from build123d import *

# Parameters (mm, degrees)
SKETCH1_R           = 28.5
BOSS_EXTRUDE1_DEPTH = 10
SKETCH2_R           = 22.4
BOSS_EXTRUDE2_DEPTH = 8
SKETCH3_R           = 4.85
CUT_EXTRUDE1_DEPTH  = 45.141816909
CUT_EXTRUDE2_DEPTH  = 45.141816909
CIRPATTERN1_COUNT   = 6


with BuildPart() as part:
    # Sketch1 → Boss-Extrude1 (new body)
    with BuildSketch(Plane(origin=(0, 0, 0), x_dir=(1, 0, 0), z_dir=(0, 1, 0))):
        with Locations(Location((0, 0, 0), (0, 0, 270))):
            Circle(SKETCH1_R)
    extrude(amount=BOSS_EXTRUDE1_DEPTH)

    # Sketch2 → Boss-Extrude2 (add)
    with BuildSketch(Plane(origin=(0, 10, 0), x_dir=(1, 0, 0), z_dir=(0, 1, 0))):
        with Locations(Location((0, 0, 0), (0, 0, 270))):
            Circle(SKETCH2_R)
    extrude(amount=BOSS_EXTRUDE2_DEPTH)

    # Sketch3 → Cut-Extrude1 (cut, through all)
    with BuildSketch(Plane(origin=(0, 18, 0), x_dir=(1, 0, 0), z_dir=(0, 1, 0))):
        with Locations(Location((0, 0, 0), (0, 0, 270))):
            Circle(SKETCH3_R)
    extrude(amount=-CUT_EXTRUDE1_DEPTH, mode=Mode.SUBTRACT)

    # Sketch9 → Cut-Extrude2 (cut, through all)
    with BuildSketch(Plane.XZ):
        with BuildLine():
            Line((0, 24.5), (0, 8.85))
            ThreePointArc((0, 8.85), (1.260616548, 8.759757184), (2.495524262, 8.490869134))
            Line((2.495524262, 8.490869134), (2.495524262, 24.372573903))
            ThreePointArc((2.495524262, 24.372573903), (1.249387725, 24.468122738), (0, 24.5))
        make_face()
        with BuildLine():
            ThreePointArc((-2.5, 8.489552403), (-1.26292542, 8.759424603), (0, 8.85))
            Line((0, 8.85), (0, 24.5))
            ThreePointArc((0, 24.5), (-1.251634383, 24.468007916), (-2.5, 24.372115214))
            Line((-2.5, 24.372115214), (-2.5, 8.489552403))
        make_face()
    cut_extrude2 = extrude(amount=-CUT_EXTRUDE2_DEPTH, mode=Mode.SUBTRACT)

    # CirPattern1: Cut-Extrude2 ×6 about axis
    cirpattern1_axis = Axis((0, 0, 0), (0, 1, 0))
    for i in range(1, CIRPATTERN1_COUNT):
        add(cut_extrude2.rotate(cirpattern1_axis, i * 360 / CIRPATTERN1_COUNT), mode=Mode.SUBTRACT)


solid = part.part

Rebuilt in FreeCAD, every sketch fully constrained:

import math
import FreeCAD as App
import Part
import Sketcher

doc = App.newDocument("Part")
params = doc.addObject("Spreadsheet::Sheet", "Params")
for row, (alias, value) in enumerate([
    ("sketch1_diameter", "57 mm"),
    ("pad1_length", "10 mm"),
    ("sketch2_diameter", "44.8 mm"),
    ("pad2_length", "8 mm"),
    ("sketch3_diameter", "9.7 mm"),
    ("sketch4_radius", "24.5 mm"),
    ("sketch4_radius2", "8.85 mm"),
], start=1):
    params.set(f"A{row}", alias)
    params.set(f"B{row}", "=" + value)
    params.setAlias(f"B{row}", alias)

body = doc.addObject("PartDesign::Body", "Body")

sketch1 = body.newObject("Sketcher::SketchObject", "Sketch")
sketch1.AttachmentSupport = (doc.getObject("XZ_Plane"), [""])
sketch1.MapMode = "FlatFace"
sketch1.addGeometry(Part.Circle(App.Vector(0, 0, 0), App.Vector(0, 0, 1), 28), False)
sketch1.addConstraint([
    Sketcher.Constraint("Coincident", 0, 3, -1, 1),
    Sketcher.Constraint("Diameter", 0, 57.0),
])
sketch1.setExpression("Constraints[1]", "Params.sketch1_diameter")
pad1 = body.newObject("PartDesign::Pad", "Pad")
pad1.Profile = sketch1
pad1.setExpression("Length", "Params.pad1_length")
pad1.Reversed = True

sketch2 = body.newObject("Sketcher::SketchObject", "Sketch001")
sketch2.AttachmentSupport = (doc.getObject("XZ_Plane"), [""])
sketch2.MapMode = "FlatFace"
sketch2.AttachmentOffset = App.Placement(App.Vector(0, 0, -10), App.Rotation())
sketch2.addGeometry(Part.Circle(App.Vector(0, 0, 0), App.Vector(0, 0, 1), 22), False)
sketch2.addConstraint([
    Sketcher.Constraint("Coincident", 0, 3, -1, 1),
    Sketcher.Constraint("Diameter", 0, 44.8),
])
sketch2.setExpression("Constraints[1]", "Params.sketch2_diameter")
pad2 = body.newObject("PartDesign::Pad", "Pad001")
pad2.Profile = sketch2
pad2.setExpression("Length", "Params.pad2_length")
pad2.Reversed = True

sketch3 = body.newObject("Sketcher::SketchObject", "Sketch002")
sketch3.AttachmentSupport = (doc.getObject("XZ_Plane"), [""])
sketch3.MapMode = "FlatFace"
sketch3.AttachmentOffset = App.Placement(App.Vector(0, 0, -18), App.Rotation())
sketch3.addGeometry(Part.Circle(App.Vector(0, 0, 0), App.Vector(0, 0, 1), 4.8), False)
sketch3.addConstraint([
    Sketcher.Constraint("Coincident", 0, 3, -1, 1),
    Sketcher.Constraint("Diameter", 0, 9.7),
])
sketch3.setExpression("Constraints[1]", "Params.sketch3_diameter")
pocket1 = body.newObject("PartDesign::Pocket", "Pocket")
pocket1.Profile = sketch3
pocket1.Type = "ThroughAll"
pocket1.Reversed = True

sketch4 = body.newObject("Sketcher::SketchObject", "Sketch003")
sketch4.AttachmentSupport = (doc.getObject("XZ_Plane"), [""])
sketch4.MapMode = "FlatFace"
sketch4.addGeometry([
    Part.ArcOfCircle(Part.Circle(App.Vector(0, 0, 0), App.Vector(0, 0, 1), 8.8), math.radians(73.62), math.radians(90)),
    Part.LineSegment(App.Vector(2.5, 8.5, 0), App.Vector(2.5, 24.4, 0)),
    Part.ArcOfCircle(Part.Circle(App.Vector(0, 0, 0), App.Vector(0, 0, 1), 24.5), math.radians(84.15), math.radians(90)),
    Part.ArcOfCircle(Part.Circle(App.Vector(0, 0, 0), App.Vector(0, 0, 1), 24.5), math.radians(90), math.radians(95.86)),
    Part.LineSegment(App.Vector(-2.5, 24.4, 0), App.Vector(-2.5, 8.5, 0)),
    Part.ArcOfCircle(Part.Circle(App.Vector(0, 0, 0), App.Vector(0, 0, 1), 8.9), math.radians(90), math.radians(106.41)),
], False)
sketch4.addConstraint([
    Sketcher.Constraint("Coincident", 0, 1, 1, 1),
    Sketcher.Constraint("Coincident", 1, 2, 2, 1),
    Sketcher.Constraint("Tangent", 2, 2, 3, 1),
    Sketcher.Constraint("Coincident", 3, 2, 4, 1),
    Sketcher.Constraint("Coincident", 4, 2, 5, 2),
    Sketcher.Constraint("Tangent", 5, 1, 0, 2),
    Sketcher.Constraint("Vertical", 1),
    Sketcher.Constraint("Vertical", 4),
    Sketcher.Constraint("Coincident", 0, 3, -1, 1),
    Sketcher.Constraint("Coincident", 2, 3, -1, 1),
    Sketcher.Constraint("Equal", 2, 3),
    Sketcher.Constraint("Equal", 0, 5),
    Sketcher.Constraint("PointOnObject", 2, 2, -2),
    Sketcher.Constraint("PointOnObject", 5, 1, -2),
    Sketcher.Constraint("Radius", 2, 24.5),
    Sketcher.Constraint("Radius", 0, 8.85),
    Sketcher.Constraint("DistanceX", 3, 2, -1, 1, 2.5),
    Sketcher.Constraint("DistanceY", 1, 1, 1, 2, 15.881705),
])
sketch4.setExpression("Constraints[14]", "Params.sketch4_radius")
sketch4.setExpression("Constraints[15]", "Params.sketch4_radius2")
pocket2 = body.newObject("PartDesign::Pocket", "Pocket001")
pocket2.Profile = sketch4
pocket2.Type = "ThroughAll"
doc.recompute()

polarpattern = body.newObject("PartDesign::PolarPattern", "PolarPattern")
polarpattern.Originals = [pocket2]
polarpattern.Axis = (doc.getObject("Y_Axis"), [""])
polarpattern.Angle = 360
polarpattern.Occurrences = 6
body.Tip = polarpattern

doc.recompute()
